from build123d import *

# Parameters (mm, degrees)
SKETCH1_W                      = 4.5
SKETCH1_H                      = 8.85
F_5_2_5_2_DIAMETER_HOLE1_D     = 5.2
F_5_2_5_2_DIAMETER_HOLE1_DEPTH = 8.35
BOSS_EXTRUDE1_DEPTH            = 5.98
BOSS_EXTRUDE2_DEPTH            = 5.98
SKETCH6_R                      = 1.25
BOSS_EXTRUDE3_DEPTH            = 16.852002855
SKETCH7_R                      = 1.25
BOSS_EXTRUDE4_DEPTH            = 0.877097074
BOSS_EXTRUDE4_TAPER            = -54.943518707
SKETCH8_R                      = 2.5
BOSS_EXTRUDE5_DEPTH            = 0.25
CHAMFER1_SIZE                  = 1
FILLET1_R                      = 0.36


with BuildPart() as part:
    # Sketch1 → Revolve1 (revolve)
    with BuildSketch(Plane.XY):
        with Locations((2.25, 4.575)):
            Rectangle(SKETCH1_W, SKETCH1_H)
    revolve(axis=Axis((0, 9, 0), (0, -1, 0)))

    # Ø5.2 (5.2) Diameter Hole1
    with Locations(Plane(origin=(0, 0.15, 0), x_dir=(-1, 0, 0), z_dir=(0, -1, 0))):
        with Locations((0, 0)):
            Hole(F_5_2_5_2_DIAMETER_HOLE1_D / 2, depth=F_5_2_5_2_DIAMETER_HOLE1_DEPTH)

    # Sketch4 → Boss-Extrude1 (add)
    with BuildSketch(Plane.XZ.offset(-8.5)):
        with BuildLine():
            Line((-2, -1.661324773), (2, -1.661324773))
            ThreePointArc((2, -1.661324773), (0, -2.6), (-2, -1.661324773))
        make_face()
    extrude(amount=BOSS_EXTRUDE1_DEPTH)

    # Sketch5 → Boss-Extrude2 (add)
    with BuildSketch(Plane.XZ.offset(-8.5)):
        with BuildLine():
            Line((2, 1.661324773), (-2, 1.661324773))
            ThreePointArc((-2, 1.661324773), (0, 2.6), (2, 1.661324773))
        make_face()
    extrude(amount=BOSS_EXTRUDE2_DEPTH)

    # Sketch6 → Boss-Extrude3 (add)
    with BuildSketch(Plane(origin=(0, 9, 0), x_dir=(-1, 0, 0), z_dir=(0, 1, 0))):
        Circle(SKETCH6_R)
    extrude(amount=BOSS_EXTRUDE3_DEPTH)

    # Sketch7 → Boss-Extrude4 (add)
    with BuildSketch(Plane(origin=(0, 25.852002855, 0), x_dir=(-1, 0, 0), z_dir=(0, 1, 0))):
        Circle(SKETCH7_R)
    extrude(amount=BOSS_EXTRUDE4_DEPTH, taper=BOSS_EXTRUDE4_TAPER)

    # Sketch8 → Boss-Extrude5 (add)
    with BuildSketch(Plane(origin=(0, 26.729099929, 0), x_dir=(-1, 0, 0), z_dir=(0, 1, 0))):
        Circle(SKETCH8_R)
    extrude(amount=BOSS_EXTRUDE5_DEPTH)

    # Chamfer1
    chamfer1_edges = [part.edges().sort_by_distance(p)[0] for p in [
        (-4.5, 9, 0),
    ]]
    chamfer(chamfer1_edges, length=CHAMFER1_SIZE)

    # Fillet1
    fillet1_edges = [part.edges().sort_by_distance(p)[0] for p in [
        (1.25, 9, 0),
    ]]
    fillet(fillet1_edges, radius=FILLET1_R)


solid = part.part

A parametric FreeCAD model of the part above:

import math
import FreeCAD as App
import Part
import Sketcher


def edges_at(feature, points):
    """Names of the edges that pass closest to the given points."""
    edges = feature.Shape.Edges
    near = lambda p: min(range(len(edges)), key=lambda i: edges[i].distToShape(Part.Vertex(*p))[0])
    return sorted({f"Edge{near(p) + 1}" for p in points})

doc = App.newDocument("Part")
body = doc.addObject("PartDesign::Body", "Body")

sketch1 = doc.addObject("Sketcher::SketchObject", "Sketch")
body.addObject(sketch1)
sketch1.AttachmentSupport = (doc.XY_Plane, [""])
sketch1.MapMode = "FlatFace"
sketch1.addGeometry(Part.LineSegment(App.Vector(0, 9, 0), App.Vector(0, 0.1, 0)), False)
sketch1.addGeometry(Part.LineSegment(App.Vector(0, 0.1, 0), App.Vector(4.5, 0.1, 0)), False)
sketch1.addGeometry(Part.LineSegment(App.Vector(4.5, 0.1, 0), App.Vector(4.5, 9, 0)), False)
sketch1.addGeometry(Part.LineSegment(App.Vector(4.5, 9, 0), App.Vector(0, 9, 0)), False)
sketch1.addConstraint(Sketcher.Constraint("Coincident", 0, 2, 1, 1))
sketch1.addConstraint(Sketcher.Constraint("Coincident", 1, 2, 2, 1))
sketch1.addConstraint(Sketcher.Constraint("Coincident", 2, 2, 3, 1))
sketch1.addConstraint(Sketcher.Constraint("Coincident", 3, 2, 0, 1))
sketch1.addConstraint(Sketcher.Constraint("Vertical", 0))
sketch1.addConstraint(Sketcher.Constraint("Horizontal", 1))
sketch1.addConstraint(Sketcher.Constraint("Vertical", 2))
sketch1.addConstraint(Sketcher.Constraint("Horizontal", 3))
sketch1.addConstraint(Sketcher.Constraint("PointOnObject", 0, 2, -2))
sketch1.addConstraint(Sketcher.Constraint("DistanceX", 1, 1, 1, 2, 4.5))
sketch1.addConstraint(Sketcher.Constraint("DistanceY", -1, 1, 2, 2, 9.0))
sketch1.addConstraint(Sketcher.Constraint("DistanceY", 0, 2, 0, 1, 8.85))
revolution = doc.addObject("PartDesign::Revolution", "Revolution")
body.addObject(revolution)
revolution.Profile = sketch1
revolution.ReferenceAxis = (sketch1, ["V_Axis"])
revolution.Angle = 360

sketch2 = doc.addObject("Sketcher::SketchObject", "Sketch001")
body.addObject(sketch2)
sketch2.AttachmentSupport = (doc.XZ_Plane, [""])
sketch2.MapMode = "FlatFace"
sketch2.AttachmentOffset = App.Placement(App.Vector(0, 0, -0.15), App.Rotation())
sketch2.addGeometry(Part.Circle(App.Vector(0, 0, 0), App.Vector(0, 0, 1), 2.6), False)
sketch2.addConstraint(Sketcher.Constraint("Coincident", 0, 3, -1, 1))
sketch2.addConstraint(Sketcher.Constraint("Diameter", 0, 5.2))
doc.recompute()
hole = doc.addObject("PartDesign::Hole", "Hole")
body.addObject(hole)
hole.Profile = sketch2
hole.ThreadType = "None"
hole.Diameter = 5.2
hole.DepthType = "Dimension"
hole.Depth = 8.35
hole.DrillPoint = "Flat"

sketch3 = doc.addObject("Sketcher::SketchObject", "Sketch002")
body.addObject(sketch3)
sketch3.AttachmentSupport = (doc.XZ_Plane, [""])
sketch3.MapMode = "FlatFace"
sketch3.AttachmentOffset = App.Placement(App.Vector(0, 0, -8.5), App.Rotation())
sketch3.addGeometry(Part.LineSegment(App.Vector(2, -1.7, 0), App.Vector(-2, -1.7, 0)), False)
sketch3.addGeometry(Part.ArcOfCircle(Part.Circle(App.Vector(0, 0, 0), App.Vector(0, 0, 1), 2.6), math.radians(-140), math.radians(-40)), False)
sketch3.addConstraint(Sketcher.Constraint("Coincident", 0, 1, 1, 2))
sketch3.addConstraint(Sketcher.Constraint("Coincident", 1, 1, 0, 2))
sketch3.addConstraint(Sketcher.Constraint("Horizontal", 0))
sketch3.addConstraint(Sketcher.Constraint("Coincident", 1, 3, -1, 1))
sketch3.addConstraint(Sketcher.Constraint("Radius", 1, 2.6))
sketch3.addConstraint(Sketcher.Constraint("DistanceX", 0, 2, 0, 1, 4.0))
pad1 = doc.addObject("PartDesign::Pad", "Pad")
body.addObject(pad1)
pad1.Profile = sketch3
pad1.Length = 5.98

sketch4 = doc.addObject("Sketcher::SketchObject", "Sketch003")
body.addObject(sketch4)
sketch4.AttachmentSupport = (doc.XZ_Plane, [""])
sketch4.MapMode = "FlatFace"
sketch4.AttachmentOffset = App.Placement(App.Vector(0, 0, -8.5), App.Rotation())
sketch4.addGeometry(Part.LineSegment(App.Vector(-2, 1.7, 0), App.Vector(2, 1.7, 0)), False)
sketch4.addGeometry(Part.ArcOfCircle(Part.Circle(App.Vector(0, 0, 0), App.Vector(0, 0, 1), 2.6), math.radians(40), math.radians(140)), False)
sketch4.addConstraint(Sketcher.Constraint("Coincident", 0, 1, 1, 2))
sketch4.addConstraint(Sketcher.Constraint("Coincident", 1, 1, 0, 2))
sketch4.addConstraint(Sketcher.Constraint("Horizontal", 0))
sketch4.addConstraint(Sketcher.Constraint("Coincident", 1, 3, -1, 1))
sketch4.addConstraint(Sketcher.Constraint("Radius", 1, 2.6))
sketch4.addConstraint(Sketcher.Constraint("DistanceX", 0, 1, 0, 2, 4.0))
pad2 = doc.addObject("PartDesign::Pad", "Pad001")
body.addObject(pad2)
pad2.Profile = sketch4
pad2.Length = 5.98

sketch5 = doc.addObject("Sketcher::SketchObject", "Sketch004")
body.addObject(sketch5)
sketch5.AttachmentSupport = (doc.XZ_Plane, [""])
sketch5.MapMode = "FlatFace"
sketch5.AttachmentOffset = App.Placement(App.Vector(0, 0, -9), App.Rotation())
sketch5.addGeometry(Part.Circle(App.Vector(0, 0, 0), App.Vector(0, 0, 1), 1.2), False)
sketch5.addConstraint(Sketcher.Constraint("Coincident", 0, 3, -1, 1))
sketch5.addConstraint(Sketcher.Constraint("Diameter", 0, 2.5))
pad3 = doc.addObject("PartDesign::Pad", "Pad002")
body.addObject(pad3)
pad3.Profile = sketch5
pad3.Length = 16.852003
pad3.Reversed = True

sketch6 = doc.addObject("Sketcher::SketchObject", "Sketch005")
body.addObject(sketch6)
sketch6.AttachmentSupport = (doc.XZ_Plane, [""])
sketch6.MapMode = "FlatFace"
sketch6.AttachmentOffset = App.Placement(App.Vector(0, 0, -25.852003), App.Rotation())
sketch6.addGeometry(Part.Circle(App.Vector(0, 0, 0), App.Vector(0, 0, 1), 1.2), False)
sketch6.addConstraint(Sketcher.Constraint("Coincident", 0, 3, -1, 1))
sketch6.addConstraint(Sketcher.Constraint("Diameter", 0, 2.5))
pad4 = doc.addObject("PartDesign::Pad", "Pad003")
body.addObject(pad4)
pad4.Profile = sketch6
pad4.Length = 0.877097
pad4.Reversed = True
pad4.TaperAngle = 54.943519

sketch7 = doc.addObject("Sketcher::SketchObject", "Sketch006")
body.addObject(sketch7)
sketch7.AttachmentSupport = (doc.XZ_Plane, [""])
sketch7.MapMode = "FlatFace"
sketch7.AttachmentOffset = App.Placement(App.Vector(0, 0, -26.7291), App.Rotation())
sketch7.addGeometry(Part.Circle(App.Vector(0, 0, 0), App.Vector(0, 0, 1), 2.5), False)
sketch7.addConstraint(Sketcher.Constraint("Coincident", 0, 3, -1, 1))
sketch7.addConstraint(Sketcher.Constraint("Diameter", 0, 5.0))
pad5 = doc.addObject("PartDesign::Pad", "Pad004")
body.addObject(pad5)
pad5.Profile = sketch7
pad5.Length = 0.25
pad5.Reversed = True
doc.recompute()

chamfer = doc.addObject("PartDesign::Chamfer", "Chamfer")
body.addObject(chamfer)
chamfer.Base = (pad5, edges_at(pad5, [(-4.5, 9, 0)]))
chamfer.Size = 1
doc.recompute()

fillet = doc.addObject("PartDesign::Fillet", "Fillet")
body.addObject(fillet)
fillet.Base = (chamfer, edges_at(chamfer, [(1.25, 9, 0)]))
fillet.Radius = 0.36

doc.recompute()
